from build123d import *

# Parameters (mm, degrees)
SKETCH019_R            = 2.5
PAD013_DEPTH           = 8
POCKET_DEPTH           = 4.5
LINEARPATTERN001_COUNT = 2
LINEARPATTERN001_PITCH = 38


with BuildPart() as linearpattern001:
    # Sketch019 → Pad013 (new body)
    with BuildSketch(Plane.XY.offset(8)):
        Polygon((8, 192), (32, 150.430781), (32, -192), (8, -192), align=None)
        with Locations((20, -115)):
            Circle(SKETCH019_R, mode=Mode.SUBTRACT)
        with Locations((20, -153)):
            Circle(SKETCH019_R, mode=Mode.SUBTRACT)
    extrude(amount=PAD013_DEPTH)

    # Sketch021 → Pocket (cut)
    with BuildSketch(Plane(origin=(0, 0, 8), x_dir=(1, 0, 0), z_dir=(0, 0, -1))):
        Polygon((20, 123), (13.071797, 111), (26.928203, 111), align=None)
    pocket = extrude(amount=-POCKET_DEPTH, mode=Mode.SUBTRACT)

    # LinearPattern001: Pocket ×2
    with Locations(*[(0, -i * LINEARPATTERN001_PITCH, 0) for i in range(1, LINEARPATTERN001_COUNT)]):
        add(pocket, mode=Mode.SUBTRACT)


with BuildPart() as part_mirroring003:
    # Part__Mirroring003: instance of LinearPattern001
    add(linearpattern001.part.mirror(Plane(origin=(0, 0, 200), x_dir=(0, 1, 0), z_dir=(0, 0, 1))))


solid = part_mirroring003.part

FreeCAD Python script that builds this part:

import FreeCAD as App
import Part
import Sketcher

V = App.Vector
Q = App.Units.Quantity


def add_polygon(sketch, points):
    """Adds a closed chain of lines whose ends are joined by coincident constraints."""
    first, n = sketch.GeometryCount, len(points)
    for a, b in zip(points, points[1:] + points[:1]):
        sketch.addGeometry(Part.LineSegment(App.Vector(*a, 0), App.Vector(*b, 0)), False)
    for i in range(n):
        sketch.addConstraint(Sketcher.Constraint("Coincident", first + i, 2, first + (i + 1) % n, 1))

doc = App.newDocument("Part")
params = doc.addObject("Spreadsheet::Sheet", "Params")
for row, (alias, value) in enumerate([
    ("sketch1_diameter", "5 mm"),
    ("sketch1_width", "24 mm"),
    ("sketch1_height", "384 mm"),
    ("pad1_length", "8 mm"),
    ("pocket1_length", "4.5 mm"),
    ("linearpattern_pitch", "38 mm"),
], start=1):
    params.set(f"A{row}", alias)
    params.set(f"B{row}", "=" + value)
    params.setAlias(f"B{row}", alias)

body = doc.addObject("PartDesign::Body", "Body")

# Sketch on XY plane
sketch1 = body.newObject("Sketcher::SketchObject", "Sketch")
sketch1.AttachmentSupport = (doc.getObject("XY_Plane"), [""])
sketch1.MapMode = "FlatFace"
sketch1.AttachmentOffset = App.Placement(V(0, 0, 8), App.Rotation())
add_polygon(sketch1, [(32, 150.4), (8, 192), (8, -192), (32, -192)])  # lines 0-3
sketch1.addGeometry(Part.Circle(V(20, -153, 0), V(0, 0, 1), 2.5), False)  # 4
sketch1.addGeometry(Part.Circle(V(20, -115, 0), V(0, 0, 1), 2.5), False)  # 5
sketch1.addConstraint(Sketcher.Constraint("Vertical", 1))
sketch1.addConstraint(Sketcher.Constraint("Horizontal", 2))
sketch1.addConstraint(Sketcher.Constraint("Vertical", 3))
sketch1.addConstraint(Sketcher.Constraint("Equal", 4, 5))
sketch1.addConstraint(Sketcher.Constraint("Vertical", 4, 3, 5, 3))
sketch1.addConstraint(Sketcher.Constraint("Diameter", 4, Q("5 mm")))
sketch1.addConstraint(Sketcher.Constraint("DistanceX", 2, 1, 2, 2, Q("24 mm")))
sketch1.addConstraint(Sketcher.Constraint("DistanceY", 1, 2, 1, 1, Q("384 mm")))
sketch1.addConstraint(Sketcher.Constraint("Angle", 0, Q("120 deg")))
sketch1.addConstraint(Sketcher.Constraint("DistanceX", -1, 1, 4, 3, Q("20 mm")))
sketch1.addConstraint(Sketcher.Constraint("DistanceY", 4, 3, -1, 1, Q("153 mm")))
sketch1.addConstraint(Sketcher.Constraint("DistanceY", 5, 3, -1, 1, Q("115 mm")))
sketch1.addConstraint(Sketcher.Constraint("DistanceX", -1, 1, 0, 2, Q("8 mm")))
sketch1.addConstraint(Sketcher.Constraint("DistanceY", -1, 1, 0, 2, Q("192 mm")))
sketch1.setExpression("Constraints[9]", "Params.sketch1_diameter")
sketch1.setExpression("Constraints[10]", "Params.sketch1_width")
sketch1.setExpression("Constraints[11]", "Params.sketch1_height")
pad1 = body.newObject("PartDesign::Pad", "Pad")
pad1.Profile = sketch1
pad1.setExpression("Length", "Params.pad1_length")

# Sketch on XY plane
sketch2 = body.newObject("Sketcher::SketchObject", "Sketch001")
sketch2.AttachmentSupport = (doc.getObject("XY_Plane"), [""])
sketch2.MapMode = "FlatFace"
sketch2.AttachmentOffset = App.Placement(V(0, 0, 8), App.Rotation())
add_polygon(sketch2, [(20, -123), (13, -111), (27, -111)])  # lines 0-2
sketch2.addConstraint(Sketcher.Constraint("Horizontal", 1))
sketch2.addConstraint(Sketcher.Constraint("Equal", 0, 2))
sketch2.addConstraint(Sketcher.Constraint("Angle", 0, Q("119.999999 deg")))
sketch2.addConstraint(Sketcher.Constraint("DistanceY", 0, 2, -1, 1, Q("111 mm")))
sketch2.addConstraint(Sketcher.Constraint("DistanceX", -1, 1, 2, 2, Q("20 mm")))
sketch2.addConstraint(Sketcher.Constraint("DistanceY", 2, 2, -1, 1, Q("123 mm")))
pocket1 = body.newObject("PartDesign::Pocket", "Pocket")
pocket1.Profile = sketch2
pocket1.setExpression("Length", "Params.pocket1_length")
pocket1.Reversed = True
doc.recompute()

linearpattern = body.newObject("PartDesign::LinearPattern", "LinearPattern")
linearpattern.Originals = [pocket1]
linearpattern.Direction = (doc.getObject("Y_Axis"), [""])
linearpattern.Mode = "offset"
linearpattern.setExpression("Offset", "Params.linearpattern_pitch")
linearpattern.Occurrences = 2
linearpattern.Reversed = True
body.Tip = linearpattern
body2 = doc.addObject("PartDesign::Body", "Body001")
doc.recompute()

mirroring = doc.addObject("Part::Mirroring", "Mirroring")
mirroring.Source = body
mirroring.Base = V(0, 0, 200)
mirroring.Normal = V(0, 0, 1)
body2.BaseFeature = mirroring
doc.recompute()
body.Visibility = False
mirroring.Visibility = False

doc.recompute()
